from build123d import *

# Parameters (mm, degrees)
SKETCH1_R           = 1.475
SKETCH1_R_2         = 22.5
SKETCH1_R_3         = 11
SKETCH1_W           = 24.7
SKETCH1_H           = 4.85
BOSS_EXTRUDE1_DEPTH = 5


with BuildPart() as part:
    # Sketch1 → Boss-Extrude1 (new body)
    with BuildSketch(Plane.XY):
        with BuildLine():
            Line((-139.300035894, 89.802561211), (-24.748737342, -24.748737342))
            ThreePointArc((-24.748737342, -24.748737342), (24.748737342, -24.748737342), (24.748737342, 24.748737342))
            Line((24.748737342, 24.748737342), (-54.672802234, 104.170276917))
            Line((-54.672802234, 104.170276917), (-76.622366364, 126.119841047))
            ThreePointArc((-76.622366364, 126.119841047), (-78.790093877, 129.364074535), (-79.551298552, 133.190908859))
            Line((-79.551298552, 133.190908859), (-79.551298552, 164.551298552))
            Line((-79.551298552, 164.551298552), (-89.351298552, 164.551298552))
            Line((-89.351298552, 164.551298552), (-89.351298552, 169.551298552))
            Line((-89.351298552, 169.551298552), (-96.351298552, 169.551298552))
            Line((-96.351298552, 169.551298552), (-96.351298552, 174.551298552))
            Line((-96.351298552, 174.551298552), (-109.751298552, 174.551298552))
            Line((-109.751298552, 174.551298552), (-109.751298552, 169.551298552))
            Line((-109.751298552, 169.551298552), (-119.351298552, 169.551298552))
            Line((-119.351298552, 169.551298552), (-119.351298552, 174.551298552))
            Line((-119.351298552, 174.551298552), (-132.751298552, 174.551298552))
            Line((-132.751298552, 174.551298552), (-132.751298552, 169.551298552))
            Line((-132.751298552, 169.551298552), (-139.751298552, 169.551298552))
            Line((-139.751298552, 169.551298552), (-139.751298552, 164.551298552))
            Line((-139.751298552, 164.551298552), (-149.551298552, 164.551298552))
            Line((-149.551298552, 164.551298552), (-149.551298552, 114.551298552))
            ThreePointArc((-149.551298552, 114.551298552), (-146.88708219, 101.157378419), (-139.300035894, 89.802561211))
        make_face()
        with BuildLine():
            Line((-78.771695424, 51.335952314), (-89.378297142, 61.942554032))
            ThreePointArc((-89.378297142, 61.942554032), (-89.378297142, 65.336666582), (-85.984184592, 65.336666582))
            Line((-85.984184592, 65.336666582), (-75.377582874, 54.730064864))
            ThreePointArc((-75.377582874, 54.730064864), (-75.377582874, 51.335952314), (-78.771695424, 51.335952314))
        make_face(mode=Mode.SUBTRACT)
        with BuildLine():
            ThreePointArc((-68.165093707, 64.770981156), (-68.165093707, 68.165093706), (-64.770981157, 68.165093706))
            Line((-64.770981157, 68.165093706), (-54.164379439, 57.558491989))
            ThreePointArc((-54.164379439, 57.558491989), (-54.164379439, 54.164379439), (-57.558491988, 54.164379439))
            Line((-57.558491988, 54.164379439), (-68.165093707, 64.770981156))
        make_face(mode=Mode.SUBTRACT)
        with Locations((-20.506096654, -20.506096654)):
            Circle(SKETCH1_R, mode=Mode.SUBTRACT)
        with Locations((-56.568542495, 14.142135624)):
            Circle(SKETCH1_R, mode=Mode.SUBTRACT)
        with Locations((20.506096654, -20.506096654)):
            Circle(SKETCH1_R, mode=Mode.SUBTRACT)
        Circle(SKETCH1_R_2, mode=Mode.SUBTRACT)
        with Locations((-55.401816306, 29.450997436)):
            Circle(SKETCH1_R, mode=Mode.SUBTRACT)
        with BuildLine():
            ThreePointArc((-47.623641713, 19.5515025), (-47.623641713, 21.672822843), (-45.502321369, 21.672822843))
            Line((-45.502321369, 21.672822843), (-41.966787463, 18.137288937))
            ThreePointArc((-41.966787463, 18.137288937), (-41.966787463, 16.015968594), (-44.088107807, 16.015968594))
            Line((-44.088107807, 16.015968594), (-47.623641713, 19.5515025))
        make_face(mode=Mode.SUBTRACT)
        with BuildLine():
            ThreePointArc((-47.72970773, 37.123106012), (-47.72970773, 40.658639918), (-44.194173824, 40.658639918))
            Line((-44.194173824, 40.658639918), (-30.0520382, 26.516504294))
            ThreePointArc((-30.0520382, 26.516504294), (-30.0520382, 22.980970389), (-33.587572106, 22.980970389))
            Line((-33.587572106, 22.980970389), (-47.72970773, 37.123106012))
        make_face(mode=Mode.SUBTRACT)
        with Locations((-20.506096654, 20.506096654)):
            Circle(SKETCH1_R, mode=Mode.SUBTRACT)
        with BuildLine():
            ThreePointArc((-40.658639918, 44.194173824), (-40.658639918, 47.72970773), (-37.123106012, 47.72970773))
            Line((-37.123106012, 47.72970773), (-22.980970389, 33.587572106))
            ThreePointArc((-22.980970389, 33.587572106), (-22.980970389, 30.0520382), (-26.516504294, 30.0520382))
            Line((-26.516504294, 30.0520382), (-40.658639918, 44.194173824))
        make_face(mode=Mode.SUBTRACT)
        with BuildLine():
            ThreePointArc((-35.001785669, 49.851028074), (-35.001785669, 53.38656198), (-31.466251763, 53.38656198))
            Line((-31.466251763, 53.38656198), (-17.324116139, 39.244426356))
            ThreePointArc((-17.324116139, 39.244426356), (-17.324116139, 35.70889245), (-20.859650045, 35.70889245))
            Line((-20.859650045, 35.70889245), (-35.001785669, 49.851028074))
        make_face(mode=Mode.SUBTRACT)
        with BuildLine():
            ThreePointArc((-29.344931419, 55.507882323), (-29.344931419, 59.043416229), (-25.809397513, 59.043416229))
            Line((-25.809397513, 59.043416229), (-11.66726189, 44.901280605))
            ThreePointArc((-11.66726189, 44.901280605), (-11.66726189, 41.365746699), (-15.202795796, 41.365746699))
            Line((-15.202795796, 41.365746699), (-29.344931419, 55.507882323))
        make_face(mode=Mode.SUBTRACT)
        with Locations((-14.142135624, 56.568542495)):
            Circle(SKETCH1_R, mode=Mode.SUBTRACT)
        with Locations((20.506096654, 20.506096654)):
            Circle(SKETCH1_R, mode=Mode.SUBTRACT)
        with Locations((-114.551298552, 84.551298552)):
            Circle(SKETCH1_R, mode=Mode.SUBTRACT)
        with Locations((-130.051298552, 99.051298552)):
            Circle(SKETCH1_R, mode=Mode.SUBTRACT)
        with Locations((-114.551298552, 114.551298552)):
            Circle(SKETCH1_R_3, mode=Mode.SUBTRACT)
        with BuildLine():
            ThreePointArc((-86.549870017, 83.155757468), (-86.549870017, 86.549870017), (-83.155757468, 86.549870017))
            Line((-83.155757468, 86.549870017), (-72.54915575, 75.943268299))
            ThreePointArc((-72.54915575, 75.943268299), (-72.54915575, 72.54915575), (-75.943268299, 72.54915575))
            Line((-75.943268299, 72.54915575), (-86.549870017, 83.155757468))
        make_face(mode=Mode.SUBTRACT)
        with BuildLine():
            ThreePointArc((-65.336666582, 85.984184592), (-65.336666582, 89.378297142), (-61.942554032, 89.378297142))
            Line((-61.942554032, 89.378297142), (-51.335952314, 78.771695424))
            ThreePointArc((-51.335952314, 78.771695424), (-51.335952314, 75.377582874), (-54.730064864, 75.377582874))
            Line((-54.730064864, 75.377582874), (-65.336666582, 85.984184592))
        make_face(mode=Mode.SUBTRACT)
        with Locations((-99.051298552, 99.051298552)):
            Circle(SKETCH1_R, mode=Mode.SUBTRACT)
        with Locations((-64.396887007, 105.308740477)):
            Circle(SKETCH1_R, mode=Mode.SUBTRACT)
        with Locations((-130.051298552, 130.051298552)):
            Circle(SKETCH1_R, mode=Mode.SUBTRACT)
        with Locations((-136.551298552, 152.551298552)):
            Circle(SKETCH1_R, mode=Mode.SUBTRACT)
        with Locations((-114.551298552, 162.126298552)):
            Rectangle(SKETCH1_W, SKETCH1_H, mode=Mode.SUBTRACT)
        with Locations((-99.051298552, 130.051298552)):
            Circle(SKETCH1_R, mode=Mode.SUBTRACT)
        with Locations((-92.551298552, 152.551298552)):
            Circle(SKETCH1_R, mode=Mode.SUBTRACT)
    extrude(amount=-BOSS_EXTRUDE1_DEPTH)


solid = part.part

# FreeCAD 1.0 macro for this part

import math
import FreeCAD as App
import Part
import Sketcher
Q = App.Units.Quantity

doc = App.newDocument("Part")
params = doc.addObject("Spreadsheet::Sheet", "Params")
for row, (alias, value) in enumerate([
    ("sketch1_diameter", "45 mm"),
    ("sketch1_diameter2", "22 mm"),
    ("sketch1_radius", "35 mm"),
    ("sketch1_radius2", "10 mm"),
    ("sketch1_radius3", "2.4 mm"),
    ("pad1_length", "5 mm"),
], start=1):
    params.set(f"A{row}", alias)
    params.set(f"B{row}", "=" + value)
    params.setAlias(f"B{row}", alias)

body = doc.addObject("PartDesign::Body", "Body")

sketch1 = body.newObject("Sketcher::SketchObject", "Sketch")
sketch1.AttachmentSupport = (doc.getObject("XY_Plane"), [""])
sketch1.MapMode = "FlatFace"
sketch1.addGeometry([
    Part.LineSegment(App.Vector(-139.3, 89.8, 0), App.Vector(-24.7, -24.7, 0)),
    Part.ArcOfCircle(Part.Circle(App.Vector(0, 0, 0), App.Vector(0, 0, 1), 35), math.radians(-135), math.radians(45)),
    Part.LineSegment(App.Vector(24.7, 24.7, 0), App.Vector(-54.7, 104.2, 0)),
    Part.LineSegment(App.Vector(-54.7, 104.2, 0), App.Vector(-76.6, 126.1, 0)),
    Part.ArcOfCircle(Part.Circle(App.Vector(-69.6, 133.2, 0), App.Vector(0, 0, 1), 10), math.radians(180), math.radians(225)),
    Part.LineSegment(App.Vector(-79.6, 133.2, 0), App.Vector(-79.6, 164.6, 0)),
    Part.LineSegment(App.Vector(-79.6, 164.6, 0), App.Vector(-89.4, 164.6, 0)),
    Part.LineSegment(App.Vector(-89.4, 164.6, 0), App.Vector(-89.4, 169.6, 0)),
    Part.LineSegment(App.Vector(-89.4, 169.6, 0), App.Vector(-96.4, 169.6, 0)),
    Part.LineSegment(App.Vector(-96.4, 169.6, 0), App.Vector(-96.4, 174.6, 0)),
    Part.LineSegment(App.Vector(-96.4, 174.6, 0), App.Vector(-109.8, 174.6, 0)),
    Part.LineSegment(App.Vector(-109.8, 174.6, 0), App.Vector(-109.8, 169.6, 0)),
    Part.LineSegment(App.Vector(-109.8, 169.6, 0), App.Vector(-119.4, 169.6, 0)),
    Part.LineSegment(App.Vector(-119.4, 169.6, 0), App.Vector(-119.4, 174.6, 0)),
    Part.LineSegment(App.Vector(-119.4, 174.6, 0), App.Vector(-132.8, 174.6, 0)),
    Part.LineSegment(App.Vector(-132.8, 174.6, 0), App.Vector(-132.8, 169.6, 0)),
    Part.LineSegment(App.Vector(-132.8, 169.6, 0), App.Vector(-139.8, 169.6, 0)),
    Part.LineSegment(App.Vector(-139.8, 169.6, 0), App.Vector(-139.8, 164.6, 0)),
    Part.LineSegment(App.Vector(-139.8, 164.6, 0), App.Vector(-149.6, 164.6, 0)),
    Part.LineSegment(App.Vector(-149.6, 164.6, 0), App.Vector(-149.6, 114.6, 0)),
    Part.ArcOfCircle(Part.Circle(App.Vector(-114.6, 114.6, 0), App.Vector(0, 0, 1), 35), math.radians(180), math.radians(225)),
    Part.ArcOfCircle(Part.Circle(App.Vector(-77.1, 53, 0), App.Vector(0, 0, 1), 2.4), math.radians(-135), math.radians(45)),
    Part.LineSegment(App.Vector(-78.8, 51.3, 0), App.Vector(-89.4, 61.9, 0)),
    Part.ArcOfCircle(Part.Circle(App.Vector(-87.7, 63.6, 0), App.Vector(0, 0, 1), 2.4), math.radians(45), math.radians(225)),
    Part.LineSegment(App.Vector(-86, 65.3, 0), App.Vector(-75.4, 54.7, 0)),
    Part.LineSegment(App.Vector(-57.6, 54.2, 0), App.Vector(-68.2, 64.8, 0)),
    Part.ArcOfCircle(Part.Circle(App.Vector(-66.5, 66.5, 0), App.Vector(0, 0, 1), 2.4), math.radians(45), math.radians(225)),
    Part.LineSegment(App.Vector(-64.8, 68.2, 0), App.Vector(-54.2, 57.6, 0)),
    Part.ArcOfCircle(Part.Circle(App.Vector(-55.9, 55.9, 0), App.Vector(0, 0, 1), 2.4), math.radians(-135), math.radians(45)),
    Part.Circle(App.Vector(-20.5, -20.5, 0), App.Vector(0, 0, 1), 1.5),
    Part.Circle(App.Vector(-56.6, 14.1, 0), App.Vector(0, 0, 1), 1.5),
    Part.LineSegment(App.Vector(-44.1, 16, 0), App.Vector(-47.6, 19.6, 0)),
    Part.ArcOfCircle(Part.Circle(App.Vector(-46.6, 20.6, 0), App.Vector(0, 0, 1), 1.5), math.radians(45), math.radians(225)),
    Part.LineSegment(App.Vector(-45.5, 21.7, 0), App.Vector(-42, 18.1, 0)),
    Part.ArcOfCircle(Part.Circle(App.Vector(-43, 17.1, 0), App.Vector(0, 0, 1), 1.5), math.radians(-135), math.radians(45)),
    Part.Circle(App.Vector(-20.5, 20.5, 0), App.Vector(0, 0, 1), 1.5),
    Part.Circle(App.Vector(0, 0, 0), App.Vector(0, 0, 1), 22.5),
    Part.Circle(App.Vector(20.5, -20.5, 0), App.Vector(0, 0, 1), 1.5),
    Part.Circle(App.Vector(20.5, 20.5, 0), App.Vector(0, 0, 1), 1.5),
    Part.Circle(App.Vector(-55.4, 29.5, 0), App.Vector(0, 0, 1), 1.5),
    Part.LineSegment(App.Vector(-33.6, 23, 0), App.Vector(-47.7, 37.1, 0)),
    Part.ArcOfCircle(Part.Circle(App.Vector(-46, 38.9, 0), App.Vector(0, 0, 1), 2.5), math.radians(45), math.radians(225)),
    Part.LineSegment(App.Vector(-44.2, 40.7, 0), App.Vector(-30.1, 26.5, 0)),
    Part.ArcOfCircle(Part.Circle(App.Vector(-31.8, 24.7, 0), App.Vector(0, 0, 1), 2.5), math.radians(-135), math.radians(45)),
    Part.LineSegment(App.Vector(-26.5, 30.1, 0), App.Vector(-40.7, 44.2, 0)),
    Part.ArcOfCircle(Part.Circle(App.Vector(-38.9, 46, 0), App.Vector(0, 0, 1), 2.5), math.radians(45), math.radians(225)),
    Part.LineSegment(App.Vector(-37.1, 47.7, 0), App.Vector(-23, 33.6, 0)),
    Part.ArcOfCircle(Part.Circle(App.Vector(-24.7, 31.8, 0), App.Vector(0, 0, 1), 2.5), math.radians(-135), math.radians(45)),
    Part.LineSegment(App.Vector(-20.9, 35.7, 0), App.Vector(-35, 49.9, 0)),
    Part.ArcOfCircle(Part.Circle(App.Vector(-33.2, 51.6, 0), App.Vector(0, 0, 1), 2.5), math.radians(45), math.radians(225)),
    Part.LineSegment(App.Vector(-31.5, 53.4, 0), App.Vector(-17.3, 39.2, 0)),
    Part.ArcOfCircle(Part.Circle(App.Vector(-19.1, 37.5, 0), App.Vector(0, 0, 1), 2.5), math.radians(-135), math.radians(45)),
    Part.LineSegment(App.Vector(-15.2, 41.4, 0), App.Vector(-29.3, 55.5, 0)),
    Part.ArcOfCircle(Part.Circle(App.Vector(-27.6, 57.3, 0), App.Vector(0, 0, 1), 2.5), math.radians(45), math.radians(225)),
    Part.LineSegment(App.Vector(-25.8, 59, 0), App.Vector(-11.7, 44.9, 0)),
    Part.ArcOfCircle(Part.Circle(App.Vector(-13.4, 43.1, 0), App.Vector(0, 0, 1), 2.5), math.radians(-135), math.radians(45)),
    Part.Circle(App.Vector(-14.1, 56.6, 0), App.Vector(0, 0, 1), 1.5),
    Part.Circle(App.Vector(-114.6, 84.6, 0), App.Vector(0, 0, 1), 1.5),
    Part.Circle(App.Vector(-130.1, 99.1, 0), App.Vector(0, 0, 1), 1.5),
    Part.Circle(App.Vector(-99.1, 99.1, 0), App.Vector(0, 0, 1), 1.5),
    Part.Circle(App.Vector(-114.6, 114.6, 0), App.Vector(0, 0, 1), 11),
    Part.LineSegment(App.Vector(-75.9, 72.5, 0), App.Vector(-86.5, 83.2, 0)),
    Part.ArcOfCircle(Part.Circle(App.Vector(-84.9, 84.9, 0), App.Vector(0, 0, 1), 2.4), math.radians(45), math.radians(225)),
    Part.LineSegment(App.Vector(-83.2, 86.5, 0), App.Vector(-72.5, 75.9, 0)),
    Part.ArcOfCircle(Part.Circle(App.Vector(-74.2, 74.2, 0), App.Vector(0, 0, 1), 2.4), math.radians(-135), math.radians(45)),
    Part.LineSegment(App.Vector(-54.7, 75.4, 0), App.Vector(-65.3, 86, 0)),
    Part.ArcOfCircle(Part.Circle(App.Vector(-63.6, 87.7, 0), App.Vector(0, 0, 1), 2.4), math.radians(45), math.radians(225)),
    Part.LineSegment(App.Vector(-61.9, 89.4, 0), App.Vector(-51.3, 78.8, 0)),
    Part.ArcOfCircle(Part.Circle(App.Vector(-53, 77.1, 0), App.Vector(0, 0, 1), 2.4), math.radians(-135), math.radians(45)),
    Part.Circle(App.Vector(-64.4, 105.3, 0), App.Vector(0, 0, 1), 1.5),
    Part.Circle(App.Vector(-130.1, 130.1, 0), App.Vector(0, 0, 1), 1.5),
    Part.Circle(App.Vector(-99.1, 130.1, 0), App.Vector(0, 0, 1), 1.5),
    Part.Circle(App.Vector(-136.6, 152.6, 0), App.Vector(0, 0, 1), 1.5),
    Part.LineSegment(App.Vector(-102.2, 159.7, 0), App.Vector(-126.9, 159.7, 0)),
    Part.LineSegment(App.Vector(-126.9, 159.7, 0), App.Vector(-126.9, 164.6, 0)),
    Part.LineSegment(App.Vector(-126.9, 164.6, 0), App.Vector(-102.2, 164.6, 0)),
    Part.LineSegment(App.Vector(-102.2, 164.6, 0), App.Vector(-102.2, 159.7, 0)),
    Part.Circle(App.Vector(-92.6, 152.6, 0), App.Vector(0, 0, 1), 1.5),
], False)
sketch1.addConstraint([
    Sketcher.Constraint("Tangent", 0, 2, 1, 1),
    Sketcher.Constraint("Tangent", 1, 2, 2, 1),
    Sketcher.Constraint("Coincident", 2, 2, 3, 1),
    Sketcher.Constraint("Tangent", 3, 2, 4, 2),
    Sketcher.Constraint("Tangent", 4, 1, 5, 1),
    Sketcher.Constraint("Coincident", 5, 2, 6, 1),
    Sketcher.Constraint("Coincident", 6, 2, 7, 1),
    Sketcher.Constraint("Coincident", 7, 2, 8, 1),
    Sketcher.Constraint("Coincident", 8, 2, 9, 1),
    Sketcher.Constraint("Coincident", 9, 2, 10, 1),
    Sketcher.Constraint("Coincident", 10, 2, 11, 1),
    Sketcher.Constraint("Coincident", 11, 2, 12, 1),
    Sketcher.Constraint("Coincident", 12, 2, 13, 1),
    Sketcher.Constraint("Coincident", 13, 2, 14, 1),
    Sketcher.Constraint("Coincident", 14, 2, 15, 1),
    Sketcher.Constraint("Coincident", 15, 2, 16, 1),
    Sketcher.Constraint("Coincident", 16, 2, 17, 1),
    Sketcher.Constraint("Coincident", 17, 2, 18, 1),
    Sketcher.Constraint("Coincident", 18, 2, 19, 1),
    Sketcher.Constraint("Tangent", 19, 2, 20, 1),
    Sketcher.Constraint("Tangent", 20, 2, 0, 1),
    Sketcher.Constraint("Tangent", 21, 1, 22, 1),
    Sketcher.Constraint("Tangent", 22, 2, 23, 2),
    Sketcher.Constraint("Tangent", 23, 1, 24, 1),
    Sketcher.Constraint("Tangent", 24, 2, 21, 2),
    Sketcher.Constraint("Tangent", 25, 2, 26, 2),
    Sketcher.Constraint("Tangent", 26, 1, 27, 1),
    Sketcher.Constraint("Tangent", 27, 2, 28, 2),
    Sketcher.Constraint("Tangent", 28, 1, 25, 1),
    Sketcher.Constraint("Tangent", 31, 2, 32, 2),
    Sketcher.Constraint("Tangent", 32, 1, 33, 1),
    Sketcher.Constraint("Tangent", 33, 2, 34, 2),
    Sketcher.Constraint("Tangent", 34, 1, 31, 1),
    Sketcher.Constraint("Tangent", 40, 2, 41, 2),
    Sketcher.Constraint("Tangent", 41, 1, 42, 1),
    Sketcher.Constraint("Tangent", 42, 2, 43, 2),
    Sketcher.Constraint("Tangent", 43, 1, 40, 1),
    Sketcher.Constraint("Tangent", 44, 2, 45, 2),
    Sketcher.Constraint("Tangent", 45, 1, 46, 1),
    Sketcher.Constraint("Tangent", 46, 2, 47, 2),
    Sketcher.Constraint("Tangent", 47, 1, 44, 1),
    Sketcher.Constraint("Tangent", 48, 2, 49, 2),
    Sketcher.Constraint("Tangent", 49, 1, 50, 1),
    Sketcher.Constraint("Tangent", 50, 2, 51, 2),
    Sketcher.Constraint("Tangent", 51, 1, 48, 1),
    Sketcher.Constraint("Tangent", 52, 2, 53, 2),
    Sketcher.Constraint("Tangent", 53, 1, 54, 1),
    Sketcher.Constraint("Tangent", 54, 2, 55, 2),
    Sketcher.Constraint("Tangent", 55, 1, 52, 1),
    Sketcher.Constraint("Tangent", 61, 2, 62, 2),
    Sketcher.Constraint("Tangent", 62, 1, 63, 1),
    Sketcher.Constraint("Tangent", 63, 2, 64, 2),
    Sketcher.Constraint("Tangent", 64, 1, 61, 1),
    Sketcher.Constraint("Tangent", 65, 2, 66, 2),
    Sketcher.Constraint("Tangent", 66, 1, 67, 1),
    Sketcher.Constraint("Tangent", 67, 2, 68, 2),
    Sketcher.Constraint("Tangent", 68, 1, 65, 1),
    Sketcher.Constraint("Coincident", 73, 2, 74, 1),
    Sketcher.Constraint("Coincident", 74, 2, 75, 1),
    Sketcher.Constraint("Coincident", 75, 2, 76, 1),
    Sketcher.Constraint("Coincident", 76, 2, 73, 1),
    Sketcher.Constraint("Vertical", 5),
    Sketcher.Constraint("Horizontal", 6),
    Sketcher.Constraint("Vertical", 7),
    Sketcher.Constraint("Horizontal", 8),
    Sketcher.Constraint("Vertical", 9),
    Sketcher.Constraint("Horizontal", 10),
    Sketcher.Constraint("Vertical", 11),
    Sketcher.Constraint("Horizontal", 12),
    Sketcher.Constraint("Vertical", 13),
    Sketcher.Constraint("Horizontal", 14),
    Sketcher.Constraint("Vertical", 15),
    Sketcher.Constraint("Horizontal", 16),
    Sketcher.Constraint("Vertical", 17),
    Sketcher.Constraint("Horizontal", 18),
    Sketcher.Constraint("Vertical", 19),
    Sketcher.Constraint("Horizontal", 73),
    Sketcher.Constraint("Vertical", 74),
    Sketcher.Constraint("Horizontal", 75),
    Sketcher.Constraint("Vertical", 76),
    Sketcher.Constraint("Coincident", 1, 3, -1, 1),
    Sketcher.Constraint("Coincident", 36, 3, -1, 1),
    Sketcher.Constraint("Coincident", 60, 3, 20, 3),
    Sketcher.Constraint("Equal", 1, 20),
    Sketcher.Constraint("Equal", 21, 23),
    Sketcher.Constraint("Equal", 23, 26),
    Sketcher.Constraint("Equal", 26, 28),
    Sketcher.Constraint("Equal", 29, 30),
    Sketcher.Constraint("Equal", 32, 34),
    Sketcher.Constraint("Equal", 30, 35),
    Sketcher.Constraint("Equal", 35, 37),
    Sketcher.Constraint("Equal", 37, 38),
    Sketcher.Constraint("Equal", 38, 39),
    Sketcher.Constraint("Equal", 41, 43),
    Sketcher.Constraint("Equal", 43, 45),
    Sketcher.Constraint("Equal", 45, 47),
    Sketcher.Constraint("Equal", 47, 49),
    Sketcher.Constraint("Equal", 49, 51),
    Sketcher.Constraint("Equal", 51, 53),
    Sketcher.Constraint("Equal", 53, 55),
    Sketcher.Constraint("Equal", 39, 56),
    Sketcher.Constraint("Equal", 56, 57),
    Sketcher.Constraint("Equal", 57, 58),
    Sketcher.Constraint("Equal", 58, 59),
    Sketcher.Constraint("Equal", 28, 62),
    Sketcher.Constraint("Equal", 62, 64),
    Sketcher.Constraint("Equal", 64, 66),
    Sketcher.Constraint("Equal", 66, 68),
    Sketcher.Constraint("Equal", 59, 69),
    Sketcher.Constraint("Equal", 69, 70),
    Sketcher.Constraint("Equal", 70, 71),
    Sketcher.Constraint("Equal", 71, 72),
    Sketcher.Constraint("Equal", 72, 77),
    Sketcher.Constraint("Symmetric", 35, 3, 37, 3, -1, 1),
    Sketcher.Constraint("Symmetric", 29, 3, 38, 3, -1, 1),
    Sketcher.Constraint("Symmetric", 29, 3, 37, 3, -2),
    Sketcher.Constraint("Parallel", 0, 2),
    Sketcher.Constraint("Parallel", 2, 3),
    Sketcher.Constraint("Parallel", 3, 22),
    Sketcher.Constraint("Parallel", 24, 25),
    Sketcher.Constraint("Parallel", 27, 31),
    Sketcher.Constraint("Parallel", 33, 40),
    Sketcher.Constraint("Parallel", 42, 44),
    Sketcher.Constraint("Parallel", 46, 48),
    Sketcher.Constraint("Parallel", 50, 52),
    Sketcher.Constraint("Parallel", 54, 61),
    Sketcher.Constraint("Parallel", 63, 65),
    Sketcher.Constraint("Horizontal", 58, 3, 59, 3),
    Sketcher.Constraint("Horizontal", 70, 3, 71, 3),
    Sketcher.Constraint("Horizontal", 72, 3, 77, 3),
    Sketcher.Constraint("Horizontal", 43, 3, 1, 2),
    Sketcher.Constraint("Horizontal", 8, 2, 11, 2),
    Sketcher.Constraint("Horizontal", 10, 2, 13, 2),
    Sketcher.Constraint("Horizontal", 12, 2, 15, 2),
    Sketcher.Constraint("Horizontal", 6, 2, 17, 2),
    Sketcher.Constraint("Horizontal", 18, 2, 74, 2),
    Sketcher.Constraint("Vertical", 20, 3, 57, 3),
    Sketcher.Constraint("Vertical", 58, 3, 70, 3),
    Sketcher.Constraint("Vertical", 59, 3, 71, 3),
    Sketcher.Constraint("Vertical", 47, 3, 0, 2),
    Sketcher.Constraint("Equal", 10, 14),
    Sketcher.Constraint("Equal", 8, 16),
    Sketcher.Constraint("Equal", 6, 18),
    Sketcher.Constraint("Equal", 7, 9),
    Sketcher.Constraint("Equal", 24, 25),
    Sketcher.Constraint("Equal", 42, 44),
    Sketcher.Constraint("Equal", 46, 48),
    Sketcher.Constraint("Equal", 50, 52),
    Sketcher.Constraint("Equal", 27, 61),
    Sketcher.Constraint("Equal", 63, 65),
    Sketcher.Constraint("Diameter", 36, 45.0),
    Sketcher.Constraint("Diameter", 60, 22.0),
    Sketcher.Constraint("Radius", 1, 35.0),
    Sketcher.Constraint("Radius", 4, 10.0),
    Sketcher.Constraint("Radius", 21, 2.4),
    Sketcher.Constraint("Radius", 32, 1.5),
    Sketcher.Constraint("Radius", 41, 2.5),
    Sketcher.Constraint("Diameter", 29, 2.95),
    Sketcher.Constraint("DistanceX", 8, 2, 8, 1, 7.0),
    Sketcher.Constraint("DistanceY", 7, 1, 7, 2, 5.0),
    Sketcher.Constraint("DistanceY", 19, 2, 19, 1, 50.0),
    Sketcher.Constraint("Angle", 0, Q("-45 deg")),
    Sketcher.Constraint("Distance", 0, 162.0),
    Sketcher.Constraint("Distance", 22, 15.0),
    Sketcher.Constraint("Distance", 31, 5.0),
    Sketcher.Constraint("Distance", 40, 20.0),
    Sketcher.Constraint("DistanceX", 6, 2, 6, 1, 9.8),
    Sketcher.Constraint("DistanceX", 10, 2, 10, 1, 13.4),
    Sketcher.Constraint("DistanceX", 12, 2, 12, 1, 9.6),
    Sketcher.Constraint("DistanceX", 73, 2, 73, 1, 24.7),
    Sketcher.Constraint("DistanceY", 74, 1, 74, 2, 4.85),
    Sketcher.Constraint("DistanceY", -1, 1, 57, 3, 84.551299),
    Sketcher.Constraint("DistanceX", 58, 3, -1, 1, 130.051299),
    Sketcher.Constraint("DistanceY", -1, 1, 58, 3, 99.051299),
    Sketcher.Constraint("DistanceX", 59, 3, -1, 1, 99.051299),
    Sketcher.Constraint("DistanceY", -1, 1, 70, 3, 130.051299),
    Sketcher.Constraint("DistanceX", 72, 3, -1, 1, 136.551299),
    Sketcher.Constraint("DistanceY", -1, 1, 72, 3, 152.551299),
    Sketcher.Constraint("DistanceX", 77, 3, -1, 1, 92.551299),
    Sketcher.Constraint("DistanceX", 73, 2, -1, 1, 126.901299),
    Sketcher.Constraint("Distance", 2, 112.319018),
    Sketcher.Constraint("DistanceX", 21, 3, -1, 1, 77.074639),
    Sketcher.Constraint("DistanceY", -1, 1, 21, 3, 53.033009),
    Sketcher.Constraint("DistanceX", 32, 3, -1, 1, 46.562982),
    Sketcher.Constraint("DistanceY", -1, 1, 34, 3, 17.076629),
    Sketcher.Constraint("DistanceX", 41, 3, -1, 1, 45.961941),
    Sketcher.Constraint("DistanceY", -1, 1, 45, 3, 45.961941),
    Sketcher.Constraint("DistanceX", 49, 3, -1, 1, 33.234019),
    Sketcher.Constraint("DistanceY", -1, 1, 51, 3, 37.476659),
    Sketcher.Constraint("DistanceY", -1, 1, 53, 3, 57.275649),
    Sketcher.Constraint("DistanceX", 55, 3, -1, 1, 13.435029),
    Sketcher.Constraint("DistanceX", 66, 3, -1, 1, 63.63961),
    Sketcher.Constraint("DistanceY", -1, 1, 66, 3, 87.681241),
    Sketcher.Constraint("DistanceY", -1, 1, 69, 3, 105.30874),
    Sketcher.Constraint("DistanceY", -1, 1, 25, 2, 64.770981),
    Sketcher.Constraint("DistanceX", 26, 1, -1, 1, 64.770981),
    Sketcher.Constraint("DistanceX", 61, 2, -1, 1, 86.54987),
    Sketcher.Constraint("DistanceY", -1, 1, 62, 1, 86.54987),
    Sketcher.Constraint("DistanceX", 29, 3, -1, 1, 20.506097),
    Sketcher.Constraint("DistanceY", 29, 3, -1, 1, 20.506097),
    Sketcher.Constraint("DistanceX", 30, 3, -1, 1, 56.568542),
    Sketcher.Constraint("DistanceY", -1, 1, 30, 3, 14.142136),
    Sketcher.Constraint("DistanceX", 39, 3, -1, 1, 55.401816),
    Sketcher.Constraint("DistanceY", -1, 1, 39, 3, 29.450997),
    Sketcher.Constraint("DistanceX", 56, 3, -1, 1, 14.142136),
    Sketcher.Constraint("DistanceY", -1, 1, 56, 3, 56.568542),
    Sketcher.Constraint("DistanceX", 69, 3, -1, 1, 64.396887),
])
sketch1.setExpression("Constraints[150]", "Params.sketch1_diameter")
sketch1.setExpression("Constraints[151]", "Params.sketch1_diameter2")
sketch1.setExpression("Constraints[152]", "Params.sketch1_radius")
sketch1.setExpression("Constraints[153]", "Params.sketch1_radius2")
sketch1.setExpression("Constraints[154]", "Params.sketch1_radius3")
pad1 = body.newObject("PartDesign::Pad", "Pad")
pad1.Profile = sketch1
pad1.setExpression("Length", "Params.pad1_length")
pad1.Reversed = True

doc.recompute()
